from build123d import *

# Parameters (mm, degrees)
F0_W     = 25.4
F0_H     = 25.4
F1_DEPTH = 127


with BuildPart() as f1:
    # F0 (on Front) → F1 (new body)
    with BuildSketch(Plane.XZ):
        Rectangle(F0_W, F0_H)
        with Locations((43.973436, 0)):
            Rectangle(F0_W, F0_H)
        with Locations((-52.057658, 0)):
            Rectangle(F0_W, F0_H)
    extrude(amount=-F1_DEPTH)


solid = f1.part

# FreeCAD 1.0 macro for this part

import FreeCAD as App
import Part
import Sketcher
Q = App.Units.Quantity


def add_polygon(sketch, points):
    """Adds a closed chain of lines whose ends are joined by coincident constraints."""
    first, n = sketch.GeometryCount, len(points)
    for a, b in zip(points, points[1:] + points[:1]):
        sketch.addGeometry(Part.LineSegment(App.Vector(*a, 0), App.Vector(*b, 0)), False)
    for i in range(n):
        sketch.addConstraint(Sketcher.Constraint("Coincident", first + i, 2, first + (i + 1) % n, 1))

doc = App.newDocument("Part")
body = doc.addObject("PartDesign::Body", "Body")
body.AllowCompound = True

# Sketch on XZ plane
sketch1 = doc.addObject("Sketcher::SketchObject", "Sketch")
body.addObject(sketch1)
sketch1.AttachmentSupport = (doc.XZ_Plane, [""])
sketch1.MapMode = "FlatFace"
add_polygon(sketch1, [(-13, 13), (-13, -13), (13, -13), (13, 13)])  # lines 0-3
add_polygon(sketch1, [(31, 13), (31, -13), (57, -13), (57, 13)])  # lines 4-7
add_polygon(sketch1, [(-65, 13), (-65, -13), (-39, -13), (-39, 13)])  # lines 8-11
sketch1.addConstraint([
    Sketcher.Constraint("Vertical", 0),
    Sketcher.Constraint("Horizontal", 1),
    Sketcher.Constraint("Vertical", 2),
    Sketcher.Constraint("Horizontal", 3),
    Sketcher.Constraint("Vertical", 4),
    Sketcher.Constraint("Horizontal", 5),
    Sketcher.Constraint("Vertical", 6),
    Sketcher.Constraint("Horizontal", 7),
    Sketcher.Constraint("Vertical", 8),
    Sketcher.Constraint("Horizontal", 9),
    Sketcher.Constraint("Vertical", 10),
    Sketcher.Constraint("Horizontal", 11),
    Sketcher.Constraint("Symmetric", 0, 2, 2, 2, -1, 1),
    Sketcher.Constraint("Horizontal", 1, 2, 4, 2),
    Sketcher.Constraint("Horizontal", 3, 2, 6, 2),
    Sketcher.Constraint("Horizontal", 5, 2, 8, 2),
    Sketcher.Constraint("Horizontal", 7, 2, 10, 2),
    Sketcher.Constraint("Equal", 3, 5),
    Sketcher.Constraint("Equal", 7, 9),
    Sketcher.Constraint("Equal", 11, 0),
    Sketcher.Constraint("DistanceX", 1, 1, 1, 2, Q("1 in")),
    Sketcher.Constraint("DistanceX", 8, 2, -1, 1, 64.757658),
    Sketcher.Constraint("DistanceX", -1, 1, 4, 2, 31.273436),
])
pad1 = doc.addObject("PartDesign::Pad", "Pad")
body.addObject(pad1)
pad1.Profile = sketch1
pad1.Length = Q("5 in")
pad1.Reversed = True

doc.recompute()
